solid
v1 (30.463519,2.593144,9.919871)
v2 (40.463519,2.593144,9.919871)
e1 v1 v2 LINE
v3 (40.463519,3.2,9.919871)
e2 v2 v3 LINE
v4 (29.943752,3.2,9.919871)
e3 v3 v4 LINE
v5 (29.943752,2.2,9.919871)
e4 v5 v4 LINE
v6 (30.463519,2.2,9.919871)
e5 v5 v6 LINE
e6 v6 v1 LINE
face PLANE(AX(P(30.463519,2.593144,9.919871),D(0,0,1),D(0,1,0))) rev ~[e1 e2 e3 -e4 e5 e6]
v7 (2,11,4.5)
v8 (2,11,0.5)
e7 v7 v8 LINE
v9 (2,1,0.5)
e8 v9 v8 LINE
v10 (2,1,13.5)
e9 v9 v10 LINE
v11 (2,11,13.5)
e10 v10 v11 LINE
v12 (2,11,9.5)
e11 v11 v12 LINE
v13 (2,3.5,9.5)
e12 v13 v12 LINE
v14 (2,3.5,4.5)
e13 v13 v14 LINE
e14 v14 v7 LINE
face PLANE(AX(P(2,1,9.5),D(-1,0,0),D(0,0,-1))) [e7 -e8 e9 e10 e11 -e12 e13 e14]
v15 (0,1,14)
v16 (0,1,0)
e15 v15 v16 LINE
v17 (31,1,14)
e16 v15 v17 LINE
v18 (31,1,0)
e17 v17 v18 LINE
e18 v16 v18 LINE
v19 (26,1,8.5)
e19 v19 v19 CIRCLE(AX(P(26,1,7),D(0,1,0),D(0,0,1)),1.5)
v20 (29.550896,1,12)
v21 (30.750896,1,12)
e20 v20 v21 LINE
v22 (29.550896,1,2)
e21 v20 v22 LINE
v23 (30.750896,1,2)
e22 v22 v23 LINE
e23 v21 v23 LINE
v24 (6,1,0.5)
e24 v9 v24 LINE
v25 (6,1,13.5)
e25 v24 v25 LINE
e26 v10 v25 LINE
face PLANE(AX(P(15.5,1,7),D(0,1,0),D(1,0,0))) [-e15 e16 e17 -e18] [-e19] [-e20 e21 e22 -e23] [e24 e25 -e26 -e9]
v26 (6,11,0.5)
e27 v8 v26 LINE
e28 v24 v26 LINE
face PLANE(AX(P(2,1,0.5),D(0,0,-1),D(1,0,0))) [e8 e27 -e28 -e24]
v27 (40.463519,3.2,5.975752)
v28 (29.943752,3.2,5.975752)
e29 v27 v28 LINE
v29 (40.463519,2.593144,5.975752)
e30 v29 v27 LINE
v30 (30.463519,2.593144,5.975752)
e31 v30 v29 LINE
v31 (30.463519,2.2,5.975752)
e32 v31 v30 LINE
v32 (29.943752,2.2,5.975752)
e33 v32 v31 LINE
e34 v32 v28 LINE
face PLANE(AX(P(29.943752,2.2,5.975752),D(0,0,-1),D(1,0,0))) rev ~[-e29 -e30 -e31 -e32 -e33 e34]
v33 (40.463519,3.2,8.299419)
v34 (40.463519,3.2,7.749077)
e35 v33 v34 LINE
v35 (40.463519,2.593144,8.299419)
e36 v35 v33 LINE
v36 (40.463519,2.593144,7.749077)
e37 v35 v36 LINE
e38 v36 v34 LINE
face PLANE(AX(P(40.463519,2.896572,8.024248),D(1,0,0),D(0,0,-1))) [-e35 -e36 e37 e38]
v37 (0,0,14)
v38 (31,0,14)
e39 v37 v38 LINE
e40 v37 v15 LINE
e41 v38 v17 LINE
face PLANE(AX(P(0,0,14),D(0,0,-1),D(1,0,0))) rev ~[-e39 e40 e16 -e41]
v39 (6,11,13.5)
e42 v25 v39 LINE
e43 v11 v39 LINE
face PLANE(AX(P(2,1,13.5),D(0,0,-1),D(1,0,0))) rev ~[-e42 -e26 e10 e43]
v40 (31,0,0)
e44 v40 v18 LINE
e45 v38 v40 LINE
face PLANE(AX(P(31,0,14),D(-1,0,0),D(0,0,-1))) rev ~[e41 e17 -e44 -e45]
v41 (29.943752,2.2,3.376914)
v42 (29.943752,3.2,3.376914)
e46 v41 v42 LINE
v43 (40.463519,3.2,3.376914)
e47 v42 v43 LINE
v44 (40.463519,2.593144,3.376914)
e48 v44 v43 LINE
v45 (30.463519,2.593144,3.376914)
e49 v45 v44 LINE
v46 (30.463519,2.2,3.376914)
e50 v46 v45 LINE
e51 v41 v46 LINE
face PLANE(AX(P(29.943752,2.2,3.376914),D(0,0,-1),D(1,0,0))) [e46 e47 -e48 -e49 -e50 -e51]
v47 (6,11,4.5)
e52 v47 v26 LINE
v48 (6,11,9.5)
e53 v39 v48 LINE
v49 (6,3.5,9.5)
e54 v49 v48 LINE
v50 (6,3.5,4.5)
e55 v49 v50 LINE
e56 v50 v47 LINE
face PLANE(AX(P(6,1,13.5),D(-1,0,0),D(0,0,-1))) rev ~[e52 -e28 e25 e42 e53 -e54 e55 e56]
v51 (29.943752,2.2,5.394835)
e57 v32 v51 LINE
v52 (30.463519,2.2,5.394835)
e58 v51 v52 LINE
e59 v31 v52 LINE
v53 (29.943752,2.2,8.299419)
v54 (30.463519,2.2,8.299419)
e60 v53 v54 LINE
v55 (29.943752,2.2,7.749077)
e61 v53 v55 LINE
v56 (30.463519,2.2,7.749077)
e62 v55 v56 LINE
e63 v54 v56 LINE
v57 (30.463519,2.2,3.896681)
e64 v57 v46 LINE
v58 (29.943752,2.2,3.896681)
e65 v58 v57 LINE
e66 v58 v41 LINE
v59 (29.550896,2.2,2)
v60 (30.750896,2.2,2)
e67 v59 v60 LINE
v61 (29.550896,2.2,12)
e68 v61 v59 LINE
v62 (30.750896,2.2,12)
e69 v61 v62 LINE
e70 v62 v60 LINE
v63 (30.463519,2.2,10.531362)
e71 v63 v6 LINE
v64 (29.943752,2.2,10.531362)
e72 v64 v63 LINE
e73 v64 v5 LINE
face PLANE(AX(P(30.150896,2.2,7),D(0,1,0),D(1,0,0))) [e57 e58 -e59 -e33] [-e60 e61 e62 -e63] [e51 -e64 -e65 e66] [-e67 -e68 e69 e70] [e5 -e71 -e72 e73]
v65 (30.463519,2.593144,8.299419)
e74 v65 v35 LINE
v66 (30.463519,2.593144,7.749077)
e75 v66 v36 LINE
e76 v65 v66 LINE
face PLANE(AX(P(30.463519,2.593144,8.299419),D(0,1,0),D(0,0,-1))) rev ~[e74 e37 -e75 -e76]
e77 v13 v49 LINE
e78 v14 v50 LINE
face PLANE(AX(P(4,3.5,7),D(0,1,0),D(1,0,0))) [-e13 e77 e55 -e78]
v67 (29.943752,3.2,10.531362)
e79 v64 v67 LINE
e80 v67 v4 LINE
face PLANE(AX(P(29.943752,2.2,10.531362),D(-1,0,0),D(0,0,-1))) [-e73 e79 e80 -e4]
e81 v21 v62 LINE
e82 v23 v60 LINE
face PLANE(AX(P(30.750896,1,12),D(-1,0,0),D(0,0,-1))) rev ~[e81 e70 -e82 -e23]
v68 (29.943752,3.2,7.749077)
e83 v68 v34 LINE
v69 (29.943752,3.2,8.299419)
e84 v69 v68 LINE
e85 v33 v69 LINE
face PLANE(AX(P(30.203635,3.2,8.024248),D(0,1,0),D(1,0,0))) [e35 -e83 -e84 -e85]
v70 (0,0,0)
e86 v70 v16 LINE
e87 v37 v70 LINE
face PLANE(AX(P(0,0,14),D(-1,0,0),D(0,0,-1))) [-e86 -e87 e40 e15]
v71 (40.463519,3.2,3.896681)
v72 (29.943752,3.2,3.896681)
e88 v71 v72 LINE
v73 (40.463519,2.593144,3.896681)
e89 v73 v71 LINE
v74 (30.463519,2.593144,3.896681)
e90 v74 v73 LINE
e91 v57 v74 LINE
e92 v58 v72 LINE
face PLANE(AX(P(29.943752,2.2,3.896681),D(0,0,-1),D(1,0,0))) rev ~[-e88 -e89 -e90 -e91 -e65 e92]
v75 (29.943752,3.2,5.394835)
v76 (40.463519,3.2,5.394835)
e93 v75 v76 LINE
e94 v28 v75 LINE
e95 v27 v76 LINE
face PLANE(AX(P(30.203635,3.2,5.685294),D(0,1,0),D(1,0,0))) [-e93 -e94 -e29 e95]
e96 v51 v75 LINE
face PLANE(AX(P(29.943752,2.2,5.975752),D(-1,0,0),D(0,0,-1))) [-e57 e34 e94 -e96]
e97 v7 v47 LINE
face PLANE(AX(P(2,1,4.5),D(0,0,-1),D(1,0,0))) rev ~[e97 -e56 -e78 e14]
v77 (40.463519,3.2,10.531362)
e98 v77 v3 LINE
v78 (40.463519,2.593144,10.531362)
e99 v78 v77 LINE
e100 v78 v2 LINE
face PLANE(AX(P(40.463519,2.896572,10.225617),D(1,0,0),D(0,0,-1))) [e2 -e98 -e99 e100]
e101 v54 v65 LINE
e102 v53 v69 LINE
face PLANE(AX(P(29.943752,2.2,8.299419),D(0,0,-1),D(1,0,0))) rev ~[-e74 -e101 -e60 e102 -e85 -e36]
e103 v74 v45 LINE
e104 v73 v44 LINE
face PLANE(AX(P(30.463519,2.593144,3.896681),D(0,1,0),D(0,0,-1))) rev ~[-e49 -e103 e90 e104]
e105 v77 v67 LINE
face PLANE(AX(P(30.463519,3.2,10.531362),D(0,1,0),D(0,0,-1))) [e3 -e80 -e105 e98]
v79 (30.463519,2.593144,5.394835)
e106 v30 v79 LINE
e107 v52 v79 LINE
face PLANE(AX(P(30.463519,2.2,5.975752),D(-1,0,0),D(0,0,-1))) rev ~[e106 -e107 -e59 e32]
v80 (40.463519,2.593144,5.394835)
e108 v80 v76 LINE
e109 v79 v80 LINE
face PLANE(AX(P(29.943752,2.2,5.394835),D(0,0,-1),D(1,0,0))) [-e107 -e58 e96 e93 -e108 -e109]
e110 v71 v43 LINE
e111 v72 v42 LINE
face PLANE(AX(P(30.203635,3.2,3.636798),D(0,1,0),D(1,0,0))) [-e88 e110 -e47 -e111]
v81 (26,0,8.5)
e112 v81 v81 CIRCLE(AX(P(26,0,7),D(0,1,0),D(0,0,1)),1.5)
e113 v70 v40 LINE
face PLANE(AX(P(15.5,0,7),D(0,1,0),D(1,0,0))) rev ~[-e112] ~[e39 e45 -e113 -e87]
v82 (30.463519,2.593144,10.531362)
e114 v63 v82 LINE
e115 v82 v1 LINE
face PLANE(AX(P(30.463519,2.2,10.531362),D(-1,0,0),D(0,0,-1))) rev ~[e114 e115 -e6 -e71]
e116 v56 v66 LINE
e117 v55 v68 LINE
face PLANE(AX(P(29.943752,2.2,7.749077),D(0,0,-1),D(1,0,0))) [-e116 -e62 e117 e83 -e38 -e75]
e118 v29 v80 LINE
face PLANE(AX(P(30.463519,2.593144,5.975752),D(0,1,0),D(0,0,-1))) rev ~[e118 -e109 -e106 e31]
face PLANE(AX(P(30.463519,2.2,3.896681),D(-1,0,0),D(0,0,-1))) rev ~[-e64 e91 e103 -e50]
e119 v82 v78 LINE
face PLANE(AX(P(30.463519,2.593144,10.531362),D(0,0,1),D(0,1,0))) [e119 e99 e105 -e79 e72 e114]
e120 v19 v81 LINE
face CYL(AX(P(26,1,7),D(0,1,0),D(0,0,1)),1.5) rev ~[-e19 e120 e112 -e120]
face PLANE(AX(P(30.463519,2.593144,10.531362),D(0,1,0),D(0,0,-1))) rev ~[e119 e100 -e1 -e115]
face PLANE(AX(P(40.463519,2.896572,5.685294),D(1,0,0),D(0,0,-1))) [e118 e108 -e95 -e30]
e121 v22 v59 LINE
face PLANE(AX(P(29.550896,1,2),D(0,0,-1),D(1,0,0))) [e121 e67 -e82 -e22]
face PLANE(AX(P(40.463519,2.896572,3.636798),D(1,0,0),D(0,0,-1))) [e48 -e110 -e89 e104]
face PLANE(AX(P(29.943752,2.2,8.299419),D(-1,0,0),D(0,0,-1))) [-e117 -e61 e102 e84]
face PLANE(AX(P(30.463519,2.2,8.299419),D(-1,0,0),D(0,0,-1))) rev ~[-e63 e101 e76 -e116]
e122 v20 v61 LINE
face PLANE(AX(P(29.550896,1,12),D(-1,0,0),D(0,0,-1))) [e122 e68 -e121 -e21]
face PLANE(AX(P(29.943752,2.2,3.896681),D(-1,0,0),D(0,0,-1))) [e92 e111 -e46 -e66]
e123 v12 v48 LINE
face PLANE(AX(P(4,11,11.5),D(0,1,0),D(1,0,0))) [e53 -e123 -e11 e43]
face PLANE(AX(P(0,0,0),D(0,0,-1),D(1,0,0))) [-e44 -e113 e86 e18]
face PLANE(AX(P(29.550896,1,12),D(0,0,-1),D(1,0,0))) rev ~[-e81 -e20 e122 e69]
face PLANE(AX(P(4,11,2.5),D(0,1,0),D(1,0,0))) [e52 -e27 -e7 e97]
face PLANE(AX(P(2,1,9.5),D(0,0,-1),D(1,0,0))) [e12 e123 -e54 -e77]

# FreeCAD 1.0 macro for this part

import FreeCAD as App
import Part
import Sketcher
from FreeCAD import Vector


def add_polygon(sketch, points):
    """Adds a closed chain of lines whose ends are joined by coincident constraints."""
    first, n = sketch.GeometryCount, len(points)
    for a, b in zip(points, points[1:] + points[:1]):
        sketch.addGeometry(Part.LineSegment(App.Vector(*a, 0), App.Vector(*b, 0)), False)
    for i in range(n):
        sketch.addConstraint(Sketcher.Constraint("Coincident", first + i, 2, first + (i + 1) % n, 1))

doc = App.newDocument("Part")
params = doc.addObject("Spreadsheet::Sheet", "Params")
for row, (alias, value) in enumerate([
    ("sketch1_width", "31 mm"),
    ("sketch1_height", "14 mm"),
    ("pad1_length", "1 mm"),
    ("sketch2_width", "4 mm"),
    ("pad2_length", "10 mm"),
    ("sketch3_diameter", "3 mm"),
    ("sketch4_width", "4 mm"),
    ("sketch4_height", "5 mm"),
    ("pad3_length", "2.5 mm"),
    ("sketch5_height", "10 mm"),
    ("sketch5_width", "1.2 mm"),
    ("pad4_length", "1.2 mm"),
    ("pad5_length", "1 mm"),
    ("pad6_length", "10 mm"),
], start=1):
    params.set(f"A{row}", alias)
    params.set(f"B{row}", "=" + value)
    params.setAlias(f"B{row}", alias)

body = doc.addObject("PartDesign::Body", "Body")

sketch1 = doc.addObject("Sketcher::SketchObject", "Sketch")
body.addObject(sketch1)
sketch1.AttachmentSupport = (doc.XZ_Plane, [""])
sketch1.MapMode = "FlatFace"
add_polygon(sketch1, [(0, 0), (0, 14), (31, 14), (31, 0)])
sketch1.addConstraint(Sketcher.Constraint("Vertical", 0))
sketch1.addConstraint(Sketcher.Constraint("Horizontal", 1))
sketch1.addConstraint(Sketcher.Constraint("Vertical", 2))
sketch1.addConstraint(Sketcher.Constraint("Horizontal", 3))
sketch1.addConstraint(Sketcher.Constraint("Coincident", 3, 2, -1, 1))
sketch1.addConstraint(Sketcher.Constraint("DistanceX", 1, 1, 1, 2, 31.0))
sketch1.addConstraint(Sketcher.Constraint("DistanceY", 0, 1, 0, 2, 14.0))
sketch1.setExpression("Constraints[9]", "Params.sketch1_width")
sketch1.setExpression("Constraints[10]", "Params.sketch1_height")
pad1 = doc.addObject("PartDesign::Pad", "Pad")
body.addObject(pad1)
pad1.Profile = sketch1
pad1.setExpression("Length", "Params.pad1_length")
pad1.Reversed = True

sketch2 = doc.addObject("Sketcher::SketchObject", "Sketch001")
body.addObject(sketch2)
sketch2.AttachmentSupport = (doc.XZ_Plane, [""])
sketch2.MapMode = "FlatFace"
sketch2.AttachmentOffset = App.Placement(Vector(0, 0, -1), App.Rotation())
add_polygon(sketch2, [(2, 9.5), (2, 13.5), (6, 13.5), (6, 9.5)])
add_polygon(sketch2, [(2, 0.5), (2, 4.5), (6, 4.5), (6, 0.5)])
sketch2.addConstraint(Sketcher.Constraint("Vertical", 0))
sketch2.addConstraint(Sketcher.Constraint("Horizontal", 1))
sketch2.addConstraint(Sketcher.Constraint("Vertical", 2))
sketch2.addConstraint(Sketcher.Constraint("Horizontal", 3))
sketch2.addConstraint(Sketcher.Constraint("Vertical", 4))
sketch2.addConstraint(Sketcher.Constraint("Horizontal", 5))
sketch2.addConstraint(Sketcher.Constraint("Vertical", 6))
sketch2.addConstraint(Sketcher.Constraint("Horizontal", 7))
sketch2.addConstraint(Sketcher.Constraint("Vertical", 3, 2, 4, 2))
sketch2.addConstraint(Sketcher.Constraint("Vertical", 2, 2, 5, 2))
sketch2.addConstraint(Sketcher.Constraint("Equal", 7, 0))
sketch2.addConstraint(Sketcher.Constraint("Equal", 2, 4))
sketch2.addConstraint(Sketcher.Constraint("DistanceX", 1, 1, 1, 2, 4.0))
sketch2.addConstraint(Sketcher.Constraint("DistanceX", -1, 1, 0, 2, 2.0))
sketch2.addConstraint(Sketcher.Constraint("DistanceY", 4, 2, 3, 2, 5.0))
sketch2.addConstraint(Sketcher.Constraint("DistanceY", -1, 1, 0, 2, 13.5))
sketch2.setExpression("Constraints[20]", "Params.sketch2_width")
pad2 = doc.addObject("PartDesign::Pad", "Pad001")
body.addObject(pad2)
pad2.Profile = sketch2
pad2.setExpression("Length", "Params.pad2_length")
pad2.Reversed = True

sketch3 = doc.addObject("Sketcher::SketchObject", "Sketch002")
body.addObject(sketch3)
sketch3.AttachmentSupport = (doc.XZ_Plane, [""])
sketch3.MapMode = "FlatFace"
sketch3.AttachmentOffset = App.Placement(Vector(0, 0, -1), App.Rotation())
sketch3.addGeometry(Part.Circle(Vector(26, 7, 0), Vector(0, 0, 1), 1.5), False)
sketch3.addConstraint(Sketcher.Constraint("Diameter", 0, 3.0))
sketch3.addConstraint(Sketcher.Constraint("DistanceX", -1, 1, 0, 3, 26.0))
sketch3.addConstraint(Sketcher.Constraint("DistanceY", -1, 1, 0, 3, 7.0))
sketch3.setExpression("Constraints[0]", "Params.sketch3_diameter")
pocket1 = doc.addObject("PartDesign::Pocket", "Pocket")
body.addObject(pocket1)
pocket1.Profile = sketch3
pocket1.Type = "ThroughAll"
pocket1.Reversed = True

sketch4 = doc.addObject("Sketcher::SketchObject", "Sketch003")
body.addObject(sketch4)
sketch4.AttachmentSupport = (doc.XZ_Plane, [""])
sketch4.MapMode = "FlatFace"
sketch4.AttachmentOffset = App.Placement(Vector(0, 0, -1), App.Rotation())
add_polygon(sketch4, [(2, 4.5), (2, 9.5), (6, 9.5), (6, 4.5)])
sketch4.addConstraint(Sketcher.Constraint("Vertical", 0))
sketch4.addConstraint(Sketcher.Constraint("Horizontal", 1))
sketch4.addConstraint(Sketcher.Constraint("Vertical", 2))
sketch4.addConstraint(Sketcher.Constraint("Horizontal", 3))
sketch4.addConstraint(Sketcher.Constraint("DistanceX", 1, 1, 1, 2, 4.0))
sketch4.addConstraint(Sketcher.Constraint("DistanceY", 0, 1, 0, 2, 5.0))
sketch4.addConstraint(Sketcher.Constraint("DistanceX", -1, 1, 0, 2, 2.0))
sketch4.addConstraint(Sketcher.Constraint("DistanceY", -1, 1, 0, 2, 9.5))
sketch4.setExpression("Constraints[8]", "Params.sketch4_width")
sketch4.setExpression("Constraints[9]", "Params.sketch4_height")
pad3 = doc.addObject("PartDesign::Pad", "Pad002")
body.addObject(pad3)
pad3.Profile = sketch4
pad3.setExpression("Length", "Params.pad3_length")
pad3.Reversed = True

sketch5 = doc.addObject("Sketcher::SketchObject", "Sketch004")
body.addObject(sketch5)
sketch5.AttachmentSupport = (doc.XZ_Plane, [""])
sketch5.MapMode = "FlatFace"
sketch5.AttachmentOffset = App.Placement(Vector(0, 0, -1), App.Rotation())
add_polygon(sketch5, [(29.550896, 2), (29.550896, 12), (30.750896, 12), (30.750896, 2)])
sketch5.addConstraint(Sketcher.Constraint("Vertical", 0))
sketch5.addConstraint(Sketcher.Constraint("Horizontal", 1))
sketch5.addConstraint(Sketcher.Constraint("Vertical", 2))
sketch5.addConstraint(Sketcher.Constraint("Horizontal", 3))
sketch5.addConstraint(Sketcher.Constraint("DistanceY", 0, 1, 0, 2, 10.0))
sketch5.addConstraint(Sketcher.Constraint("DistanceX", 1, 1, 1, 2, 1.2))
sketch5.addConstraint(Sketcher.Constraint("DistanceY", -1, 1, 0, 2, 12.0))
sketch5.addConstraint(Sketcher.Constraint("DistanceX", -1, 1, 0, 2, 29.550896))
sketch5.setExpression("Constraints[8]", "Params.sketch5_height")
sketch5.setExpression("Constraints[9]", "Params.sketch5_width")
pad4 = doc.addObject("PartDesign::Pad", "Pad003")
body.addObject(pad4)
pad4.Profile = sketch5
pad4.setExpression("Length", "Params.pad4_length")
pad4.Reversed = True

sketch6 = doc.addObject("Sketcher::SketchObject", "Sketch005")
body.addObject(sketch6)
sketch6.AttachmentSupport = (doc.XZ_Plane, [""])
sketch6.MapMode = "FlatFace"
sketch6.AttachmentOffset = App.Placement(Vector(0, 0, -2.2), App.Rotation())
add_polygon(sketch6, [(29.943752, 3.376914), (29.943752, 3.896681), (30.463519, 3.896681), (30.463519, 3.376914)])
add_polygon(sketch6, [(29.943752, 5.394835), (29.943752, 5.975752), (30.463519, 5.975752), (30.463519, 5.394835)])
add_polygon(sketch6, [(29.943752, 7.749077), (29.943752, 8.299419), (30.463519, 8.299419), (30.463519, 7.749077)])
add_polygon(sketch6, [(29.943752, 9.919871), (29.943752, 10.531362), (30.463519, 10.531362), (30.463519, 9.919871)])
sketch6.addConstraint(Sketcher.Constraint("Vertical", 0))
sketch6.addConstraint(Sketcher.Constraint("Horizontal", 1))
sketch6.addConstraint(Sketcher.Constraint("Vertical", 2))
sketch6.addConstraint(Sketcher.Constraint("Horizontal", 3))
sketch6.addConstraint(Sketcher.Constraint("Vertical", 4))
sketch6.addConstraint(Sketcher.Constraint("Horizontal", 5))
sketch6.addConstraint(Sketcher.Constraint("Vertical", 6))
sketch6.addConstraint(Sketcher.Constraint("Horizontal", 7))
sketch6.addConstraint(Sketcher.Constraint("Vertical", 8))
sketch6.addConstraint(Sketcher.Constraint("Horizontal", 9))
sketch6.addConstraint(Sketcher.Constraint("Vertical", 10))
sketch6.addConstraint(Sketcher.Constraint("Horizontal", 11))
sketch6.addConstraint(Sketcher.Constraint("Vertical", 12))
sketch6.addConstraint(Sketcher.Constraint("Horizontal", 13))
sketch6.addConstraint(Sketcher.Constraint("Vertical", 14))
sketch6.addConstraint(Sketcher.Constraint("Horizontal", 15))
sketch6.addConstraint(Sketcher.Constraint("Vertical", 3, 2, 4, 2))
sketch6.addConstraint(Sketcher.Constraint("Vertical", 2, 2, 5, 2))
sketch6.addConstraint(Sketcher.Constraint("Vertical", 7, 2, 8, 2))
sketch6.addConstraint(Sketcher.Constraint("Vertical", 6, 2, 9, 2))
sketch6.addConstraint(Sketcher.Constraint("Vertical", 11, 2, 12, 2))
sketch6.addConstraint(Sketcher.Constraint("Vertical", 10, 2, 13, 2))
sketch6.addConstraint(Sketcher.Constraint("Equal", 15, 0))
sketch6.addConstraint(Sketcher.Constraint("DistanceY", 12, 1, 12, 2, 0.611491))
sketch6.addConstraint(Sketcher.Constraint("DistanceX", 1, 1, 1, 2, 0.519768))
sketch6.addConstraint(Sketcher.Constraint("DistanceY", 4, 1, 4, 2, 0.580917))
sketch6.addConstraint(Sketcher.Constraint("DistanceY", 8, 1, 8, 2, 0.550342))
sketch6.addConstraint(Sketcher.Constraint("DistanceX", -1, 1, 0, 2, 29.943752))
sketch6.addConstraint(Sketcher.Constraint("DistanceY", -1, 1, 0, 2, 3.896681))
sketch6.addConstraint(Sketcher.Constraint("DistanceY", -1, 1, 8, 2, 8.299419))
sketch6.addConstraint(Sketcher.Constraint("DistanceY", -1, 1, 14, 2, 9.919871))
sketch6.addConstraint(Sketcher.Constraint("DistanceY", 0, 2, 4, 2, 2.079071))
pad5 = doc.addObject("PartDesign::Pad", "Pad004")
body.addObject(pad5)
pad5.Profile = sketch6
pad5.setExpression("Length", "Params.pad5_length")
pad5.Reversed = True

sketch7 = doc.addObject("Sketcher::SketchObject", "Sketch006")
body.addObject(sketch7)
sketch7.AttachmentSupport = (doc.YZ_Plane, [""])
sketch7.MapMode = "FlatFace"
sketch7.AttachmentOffset = App.Placement(Vector(0, 0, 30.463519), App.Rotation())
add_polygon(sketch7, [(3.2, 10.531362), (2.593144, 10.531362), (2.593144, 9.919871), (3.2, 9.919871)])
add_polygon(sketch7, [(3.2, 8.299419), (2.593144, 8.299419), (2.593144, 7.749077), (3.2, 7.749077)])
add_polygon(sketch7, [(3.2, 5.975752), (2.593144, 5.975752), (2.593144, 5.394835), (3.2, 5.394835)])
add_polygon(sketch7, [(3.2, 3.896681), (2.593144, 3.896681), (2.593144, 3.376914), (3.2, 3.376914)])
sketch7.addConstraint(Sketcher.Constraint("Horizontal", 0))
sketch7.addConstraint(Sketcher.Constraint("Vertical", 1))
sketch7.addConstraint(Sketcher.Constraint("Horizontal", 2))
sketch7.addConstraint(Sketcher.Constraint("Vertical", 3))
sketch7.addConstraint(Sketcher.Constraint("Horizontal", 4))
sketch7.addConstraint(Sketcher.Constraint("Vertical", 5))
sketch7.addConstraint(Sketcher.Constraint("Horizontal", 6))
sketch7.addConstraint(Sketcher.Constraint("Vertical", 7))
sketch7.addConstraint(Sketcher.Constraint("Horizontal", 8))
sketch7.addConstraint(Sketcher.Constraint("Vertical", 9))
sketch7.addConstraint(Sketcher.Constraint("Horizontal", 10))
sketch7.addConstraint(Sketcher.Constraint("Vertical", 11))
sketch7.addConstraint(Sketcher.Constraint("Horizontal", 12))
sketch7.addConstraint(Sketcher.Constraint("Vertical", 13))
sketch7.addConstraint(Sketcher.Constraint("Horizontal", 14))
sketch7.addConstraint(Sketcher.Constraint("Vertical", 15))
sketch7.addConstraint(Sketcher.Constraint("Vertical", 1, 2, 4, 2))
sketch7.addConstraint(Sketcher.Constraint("Vertical", 3, 2, 6, 2))
sketch7.addConstraint(Sketcher.Constraint("Vertical", 5, 2, 8, 2))
sketch7.addConstraint(Sketcher.Constraint("Vertical", 7, 2, 10, 2))
sketch7.addConstraint(Sketcher.Constraint("Vertical", 9, 2, 12, 2))
sketch7.addConstraint(Sketcher.Constraint("Vertical", 11, 2, 14, 2))
sketch7.addConstraint(Sketcher.Constraint("DistanceX", -1, 1, 2, 2, 3.2))
sketch7.addConstraint(Sketcher.Constraint("DistanceY", 1, 2, 1, 1, 0.611491))
sketch7.addConstraint(Sketcher.Constraint("DistanceX", 0, 2, 0, 1, 0.606856))
sketch7.addConstraint(Sketcher.Constraint("DistanceY", 5, 2, 5, 1, 0.550342))
sketch7.addConstraint(Sketcher.Constraint("DistanceY", 9, 2, 9, 1, 0.580917))
sketch7.addConstraint(Sketcher.Constraint("DistanceY", 13, 2, 13, 1, 0.519768))
sketch7.addConstraint(Sketcher.Constraint("DistanceY", -1, 1, 1, 2, 9.919871))
sketch7.addConstraint(Sketcher.Constraint("DistanceY", -1, 1, 4, 2, 8.299419))
sketch7.addConstraint(Sketcher.Constraint("DistanceY", -1, 1, 12, 2, 3.896681))
sketch7.addConstraint(Sketcher.Constraint("DistanceY", 8, 2, 1, 2, 3.944119))
pad6 = doc.addObject("PartDesign::Pad", "Pad005")
body.addObject(pad6)
pad6.Profile = sketch7
pad6.setExpression("Length", "Params.pad6_length")

doc.recompute()
